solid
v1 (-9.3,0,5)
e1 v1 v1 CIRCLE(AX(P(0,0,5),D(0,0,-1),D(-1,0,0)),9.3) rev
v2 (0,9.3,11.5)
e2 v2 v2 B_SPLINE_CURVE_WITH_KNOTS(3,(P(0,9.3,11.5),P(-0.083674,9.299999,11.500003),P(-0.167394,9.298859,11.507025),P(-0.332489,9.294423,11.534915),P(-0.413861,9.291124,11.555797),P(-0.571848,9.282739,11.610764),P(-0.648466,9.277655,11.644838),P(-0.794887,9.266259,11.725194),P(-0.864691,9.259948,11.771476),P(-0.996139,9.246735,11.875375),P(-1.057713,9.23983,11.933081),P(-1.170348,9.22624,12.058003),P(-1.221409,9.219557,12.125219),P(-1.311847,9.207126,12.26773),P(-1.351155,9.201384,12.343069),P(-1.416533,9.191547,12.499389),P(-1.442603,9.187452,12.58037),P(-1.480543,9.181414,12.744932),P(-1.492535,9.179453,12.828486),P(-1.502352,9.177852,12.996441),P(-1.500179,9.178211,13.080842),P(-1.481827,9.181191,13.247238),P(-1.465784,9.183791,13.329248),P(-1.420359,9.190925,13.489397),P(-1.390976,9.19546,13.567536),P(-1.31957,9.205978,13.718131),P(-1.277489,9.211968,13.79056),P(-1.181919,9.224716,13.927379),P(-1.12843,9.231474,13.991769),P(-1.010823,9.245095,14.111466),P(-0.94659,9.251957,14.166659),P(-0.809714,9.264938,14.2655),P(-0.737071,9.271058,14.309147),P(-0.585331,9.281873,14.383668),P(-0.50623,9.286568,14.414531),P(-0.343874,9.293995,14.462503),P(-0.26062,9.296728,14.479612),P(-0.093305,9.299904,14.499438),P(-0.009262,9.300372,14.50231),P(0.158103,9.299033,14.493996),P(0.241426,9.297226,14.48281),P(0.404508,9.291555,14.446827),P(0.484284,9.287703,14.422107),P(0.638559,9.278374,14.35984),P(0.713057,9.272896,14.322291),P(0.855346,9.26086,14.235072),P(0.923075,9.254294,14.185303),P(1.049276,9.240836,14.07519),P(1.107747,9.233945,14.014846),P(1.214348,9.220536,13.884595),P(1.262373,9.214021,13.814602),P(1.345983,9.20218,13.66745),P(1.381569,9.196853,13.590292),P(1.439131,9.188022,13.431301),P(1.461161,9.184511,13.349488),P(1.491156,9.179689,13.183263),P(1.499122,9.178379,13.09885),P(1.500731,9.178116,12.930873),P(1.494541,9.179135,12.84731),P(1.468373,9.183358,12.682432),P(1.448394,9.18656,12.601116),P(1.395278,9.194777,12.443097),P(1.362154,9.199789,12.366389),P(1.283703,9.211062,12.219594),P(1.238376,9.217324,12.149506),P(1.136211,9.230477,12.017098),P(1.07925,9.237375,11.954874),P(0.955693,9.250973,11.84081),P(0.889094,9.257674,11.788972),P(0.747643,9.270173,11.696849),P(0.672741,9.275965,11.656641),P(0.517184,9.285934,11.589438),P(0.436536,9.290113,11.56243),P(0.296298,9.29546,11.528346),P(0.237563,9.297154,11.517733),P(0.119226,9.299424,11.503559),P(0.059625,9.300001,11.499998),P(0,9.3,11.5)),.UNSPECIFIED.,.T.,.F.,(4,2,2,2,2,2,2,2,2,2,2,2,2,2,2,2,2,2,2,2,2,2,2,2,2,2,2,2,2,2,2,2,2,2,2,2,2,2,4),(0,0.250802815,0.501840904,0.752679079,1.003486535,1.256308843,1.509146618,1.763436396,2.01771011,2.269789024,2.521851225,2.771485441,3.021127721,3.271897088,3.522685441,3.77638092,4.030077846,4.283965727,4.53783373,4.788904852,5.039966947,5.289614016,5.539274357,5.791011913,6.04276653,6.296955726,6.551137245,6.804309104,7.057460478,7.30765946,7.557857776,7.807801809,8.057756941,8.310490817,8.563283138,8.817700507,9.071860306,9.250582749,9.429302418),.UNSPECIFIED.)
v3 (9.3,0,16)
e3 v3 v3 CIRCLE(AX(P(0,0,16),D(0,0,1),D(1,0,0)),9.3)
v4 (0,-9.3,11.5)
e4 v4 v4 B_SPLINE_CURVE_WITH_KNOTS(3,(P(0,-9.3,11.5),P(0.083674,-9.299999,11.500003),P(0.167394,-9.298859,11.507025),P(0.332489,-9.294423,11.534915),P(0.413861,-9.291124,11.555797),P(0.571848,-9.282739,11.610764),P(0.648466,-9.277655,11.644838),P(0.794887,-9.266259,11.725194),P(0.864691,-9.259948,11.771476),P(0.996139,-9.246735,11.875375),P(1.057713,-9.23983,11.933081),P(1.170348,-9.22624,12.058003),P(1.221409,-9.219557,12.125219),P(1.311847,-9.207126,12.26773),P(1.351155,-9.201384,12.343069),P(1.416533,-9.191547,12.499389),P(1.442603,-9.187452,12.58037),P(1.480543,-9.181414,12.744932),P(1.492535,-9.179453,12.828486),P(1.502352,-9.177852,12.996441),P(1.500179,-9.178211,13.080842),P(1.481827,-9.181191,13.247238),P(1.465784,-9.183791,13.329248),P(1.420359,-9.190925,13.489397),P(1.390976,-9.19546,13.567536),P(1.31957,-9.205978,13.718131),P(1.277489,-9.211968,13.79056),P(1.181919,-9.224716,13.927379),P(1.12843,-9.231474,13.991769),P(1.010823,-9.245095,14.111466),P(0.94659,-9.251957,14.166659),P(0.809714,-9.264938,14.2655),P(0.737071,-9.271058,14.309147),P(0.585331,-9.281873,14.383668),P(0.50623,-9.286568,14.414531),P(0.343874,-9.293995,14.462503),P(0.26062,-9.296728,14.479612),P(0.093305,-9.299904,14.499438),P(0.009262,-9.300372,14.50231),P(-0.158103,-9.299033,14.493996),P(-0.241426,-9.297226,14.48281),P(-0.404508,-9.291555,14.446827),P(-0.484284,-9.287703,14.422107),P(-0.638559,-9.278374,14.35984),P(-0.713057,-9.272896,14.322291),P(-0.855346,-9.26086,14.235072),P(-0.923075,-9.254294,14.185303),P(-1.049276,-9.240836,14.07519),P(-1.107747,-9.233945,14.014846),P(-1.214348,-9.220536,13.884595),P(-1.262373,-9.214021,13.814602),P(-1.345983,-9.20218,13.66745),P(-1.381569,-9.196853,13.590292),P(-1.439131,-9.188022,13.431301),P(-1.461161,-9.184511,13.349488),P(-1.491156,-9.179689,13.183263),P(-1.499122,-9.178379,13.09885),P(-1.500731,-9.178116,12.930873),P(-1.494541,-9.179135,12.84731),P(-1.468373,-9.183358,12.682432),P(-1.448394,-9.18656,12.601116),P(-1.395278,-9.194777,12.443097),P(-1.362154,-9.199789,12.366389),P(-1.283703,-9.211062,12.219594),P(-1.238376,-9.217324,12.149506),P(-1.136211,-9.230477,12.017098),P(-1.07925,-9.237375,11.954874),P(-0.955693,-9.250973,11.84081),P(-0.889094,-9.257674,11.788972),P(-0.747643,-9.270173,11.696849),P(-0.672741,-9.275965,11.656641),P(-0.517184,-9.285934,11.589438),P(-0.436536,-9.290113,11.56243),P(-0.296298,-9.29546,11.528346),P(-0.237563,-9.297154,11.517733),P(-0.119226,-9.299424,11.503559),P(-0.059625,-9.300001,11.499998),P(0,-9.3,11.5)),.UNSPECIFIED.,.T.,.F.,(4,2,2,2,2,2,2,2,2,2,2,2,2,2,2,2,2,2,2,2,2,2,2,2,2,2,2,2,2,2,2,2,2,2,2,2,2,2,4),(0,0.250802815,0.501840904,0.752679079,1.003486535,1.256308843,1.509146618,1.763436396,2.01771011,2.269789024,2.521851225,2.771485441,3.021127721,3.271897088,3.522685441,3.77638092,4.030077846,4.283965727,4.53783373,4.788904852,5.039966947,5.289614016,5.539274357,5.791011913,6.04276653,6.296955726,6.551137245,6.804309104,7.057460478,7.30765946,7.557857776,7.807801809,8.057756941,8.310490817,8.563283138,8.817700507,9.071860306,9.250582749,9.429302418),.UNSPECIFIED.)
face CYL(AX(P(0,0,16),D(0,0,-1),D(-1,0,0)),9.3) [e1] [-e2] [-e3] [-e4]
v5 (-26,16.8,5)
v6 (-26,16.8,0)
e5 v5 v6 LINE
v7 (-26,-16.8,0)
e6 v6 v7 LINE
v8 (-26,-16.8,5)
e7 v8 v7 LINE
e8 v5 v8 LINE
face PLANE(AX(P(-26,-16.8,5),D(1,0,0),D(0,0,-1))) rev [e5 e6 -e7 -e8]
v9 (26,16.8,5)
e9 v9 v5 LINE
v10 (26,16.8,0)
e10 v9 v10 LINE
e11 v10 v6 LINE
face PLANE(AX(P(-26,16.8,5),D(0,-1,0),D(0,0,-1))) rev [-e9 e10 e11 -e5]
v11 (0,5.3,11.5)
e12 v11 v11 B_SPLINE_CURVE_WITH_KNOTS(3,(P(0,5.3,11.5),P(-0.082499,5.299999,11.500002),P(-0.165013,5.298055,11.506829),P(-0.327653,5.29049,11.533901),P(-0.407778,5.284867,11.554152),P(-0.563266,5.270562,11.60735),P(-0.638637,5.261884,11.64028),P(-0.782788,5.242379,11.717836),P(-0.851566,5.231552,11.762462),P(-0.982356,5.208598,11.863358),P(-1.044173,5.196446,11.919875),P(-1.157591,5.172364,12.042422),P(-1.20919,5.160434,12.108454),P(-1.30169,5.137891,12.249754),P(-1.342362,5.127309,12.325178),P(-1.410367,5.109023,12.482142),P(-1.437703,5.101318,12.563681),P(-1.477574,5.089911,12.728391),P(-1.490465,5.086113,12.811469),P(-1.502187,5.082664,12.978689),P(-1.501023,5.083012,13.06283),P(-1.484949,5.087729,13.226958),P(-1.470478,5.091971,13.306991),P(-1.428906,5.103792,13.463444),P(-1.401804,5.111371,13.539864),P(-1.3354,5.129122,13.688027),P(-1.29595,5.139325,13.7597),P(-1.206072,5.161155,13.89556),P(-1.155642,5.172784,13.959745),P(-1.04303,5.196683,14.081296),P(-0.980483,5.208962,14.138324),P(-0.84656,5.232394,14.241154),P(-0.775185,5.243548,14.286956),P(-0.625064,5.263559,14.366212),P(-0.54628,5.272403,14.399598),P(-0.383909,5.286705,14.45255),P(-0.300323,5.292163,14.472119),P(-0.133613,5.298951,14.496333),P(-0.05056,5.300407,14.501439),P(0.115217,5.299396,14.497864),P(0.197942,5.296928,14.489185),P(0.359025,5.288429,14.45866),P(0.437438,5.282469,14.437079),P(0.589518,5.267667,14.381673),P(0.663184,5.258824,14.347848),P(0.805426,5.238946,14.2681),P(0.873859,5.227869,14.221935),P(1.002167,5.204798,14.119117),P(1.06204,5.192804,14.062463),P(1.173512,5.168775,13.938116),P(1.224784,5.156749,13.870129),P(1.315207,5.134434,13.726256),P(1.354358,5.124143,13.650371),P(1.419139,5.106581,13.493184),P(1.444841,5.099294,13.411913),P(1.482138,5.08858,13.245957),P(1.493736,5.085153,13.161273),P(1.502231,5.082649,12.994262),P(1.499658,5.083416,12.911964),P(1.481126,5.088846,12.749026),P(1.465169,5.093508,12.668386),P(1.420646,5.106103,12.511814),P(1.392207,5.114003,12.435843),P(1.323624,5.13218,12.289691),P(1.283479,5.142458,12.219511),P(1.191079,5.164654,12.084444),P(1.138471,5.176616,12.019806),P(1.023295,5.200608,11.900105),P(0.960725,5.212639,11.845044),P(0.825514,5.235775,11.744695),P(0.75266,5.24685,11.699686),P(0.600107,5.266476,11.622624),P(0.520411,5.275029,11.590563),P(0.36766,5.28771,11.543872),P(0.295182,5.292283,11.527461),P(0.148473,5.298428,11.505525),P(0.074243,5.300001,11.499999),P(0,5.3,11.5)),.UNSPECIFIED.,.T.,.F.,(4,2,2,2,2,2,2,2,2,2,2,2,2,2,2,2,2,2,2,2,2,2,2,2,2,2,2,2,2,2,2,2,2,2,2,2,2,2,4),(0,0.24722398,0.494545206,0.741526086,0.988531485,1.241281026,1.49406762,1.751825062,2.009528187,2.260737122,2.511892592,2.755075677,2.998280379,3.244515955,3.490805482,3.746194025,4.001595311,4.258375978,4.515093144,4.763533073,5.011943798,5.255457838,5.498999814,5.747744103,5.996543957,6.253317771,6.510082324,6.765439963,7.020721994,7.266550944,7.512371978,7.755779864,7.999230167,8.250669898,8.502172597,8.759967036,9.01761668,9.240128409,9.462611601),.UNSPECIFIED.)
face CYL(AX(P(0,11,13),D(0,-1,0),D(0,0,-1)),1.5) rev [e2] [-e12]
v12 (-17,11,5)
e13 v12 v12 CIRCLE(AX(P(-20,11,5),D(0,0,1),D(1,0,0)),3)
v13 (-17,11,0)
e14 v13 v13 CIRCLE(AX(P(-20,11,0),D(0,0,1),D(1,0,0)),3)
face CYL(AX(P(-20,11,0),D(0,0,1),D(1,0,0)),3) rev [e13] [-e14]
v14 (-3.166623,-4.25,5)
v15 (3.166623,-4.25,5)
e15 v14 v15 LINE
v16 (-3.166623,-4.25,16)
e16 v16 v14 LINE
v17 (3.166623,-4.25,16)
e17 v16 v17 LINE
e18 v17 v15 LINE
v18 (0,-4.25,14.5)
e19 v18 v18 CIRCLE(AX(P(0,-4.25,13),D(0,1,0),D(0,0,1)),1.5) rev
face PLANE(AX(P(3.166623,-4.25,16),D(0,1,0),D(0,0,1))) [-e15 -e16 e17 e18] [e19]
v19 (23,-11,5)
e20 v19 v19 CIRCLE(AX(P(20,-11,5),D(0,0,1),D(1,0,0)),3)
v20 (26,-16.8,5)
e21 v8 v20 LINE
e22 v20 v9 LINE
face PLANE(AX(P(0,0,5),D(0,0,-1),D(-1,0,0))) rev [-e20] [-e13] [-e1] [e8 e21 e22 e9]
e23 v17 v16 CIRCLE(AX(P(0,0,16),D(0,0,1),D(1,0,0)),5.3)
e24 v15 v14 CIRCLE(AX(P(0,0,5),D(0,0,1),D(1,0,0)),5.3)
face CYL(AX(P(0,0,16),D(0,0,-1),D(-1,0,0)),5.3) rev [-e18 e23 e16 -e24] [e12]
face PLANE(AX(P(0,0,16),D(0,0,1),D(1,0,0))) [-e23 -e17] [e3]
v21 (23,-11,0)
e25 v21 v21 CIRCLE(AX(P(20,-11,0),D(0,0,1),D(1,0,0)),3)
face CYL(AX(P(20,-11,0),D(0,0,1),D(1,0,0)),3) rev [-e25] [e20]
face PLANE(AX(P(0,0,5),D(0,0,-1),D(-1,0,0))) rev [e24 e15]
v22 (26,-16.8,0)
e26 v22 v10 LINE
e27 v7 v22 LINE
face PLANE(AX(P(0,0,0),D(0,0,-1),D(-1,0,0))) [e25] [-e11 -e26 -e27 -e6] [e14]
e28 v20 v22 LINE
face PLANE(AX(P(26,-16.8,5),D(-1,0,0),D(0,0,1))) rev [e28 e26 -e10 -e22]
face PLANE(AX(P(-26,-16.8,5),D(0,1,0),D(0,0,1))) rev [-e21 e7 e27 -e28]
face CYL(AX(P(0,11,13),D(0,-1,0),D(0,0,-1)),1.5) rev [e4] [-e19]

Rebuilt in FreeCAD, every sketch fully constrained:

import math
import FreeCAD as App
import Part
import Sketcher
from FreeCAD import Vector


def add_polygon(sketch, points):
    """Adds a closed chain of lines whose ends are joined by coincident constraints."""
    first, n = sketch.GeometryCount, len(points)
    for a, b in zip(points, points[1:] + points[:1]):
        sketch.addGeometry(Part.LineSegment(App.Vector(*a, 0), App.Vector(*b, 0)), False)
    for i in range(n):
        sketch.addConstraint(Sketcher.Constraint("Coincident", first + i, 2, first + (i + 1) % n, 1))

doc = App.newDocument("Part")
params = doc.addObject("Spreadsheet::Sheet", "Params")
for row, (alias, value) in enumerate([
    ("sketch1_width", "52 mm"),
    ("sketch1_height", "33.6 mm"),
    ("pad1_length", "5 mm"),
    ("sketch2_diameter", "6 mm"),
    ("pocket1_length", "5 mm"),
    ("sketch3_diameter", "18.6 mm"),
    ("sketch3_radius", "5.3 mm"),
    ("pad2_length", "11 mm"),
    ("sketch4_diameter", "3 mm"),
], start=1):
    params.set(f"A{row}", alias)
    params.set(f"B{row}", "=" + value)
    params.setAlias(f"B{row}", alias)

body = doc.addObject("PartDesign::Body", "Body")

sketch1 = body.newObject("Sketcher::SketchObject", "Sketch")
sketch1.AttachmentSupport = (doc.getObject("XY_Plane"), [""])
sketch1.MapMode = "FlatFace"
add_polygon(sketch1, [(-26, 17), (-26, -17), (26, -17), (26, 17)])
sketch1.addConstraint(Sketcher.Constraint("Vertical", 0))
sketch1.addConstraint(Sketcher.Constraint("Horizontal", 1))
sketch1.addConstraint(Sketcher.Constraint("Vertical", 2))
sketch1.addConstraint(Sketcher.Constraint("Horizontal", 3))
sketch1.addConstraint(Sketcher.Constraint("Symmetric", 0, 2, 2, 2, -1, 1))
sketch1.addConstraint(Sketcher.Constraint("DistanceX", 1, 1, 1, 2, 52.0))
sketch1.addConstraint(Sketcher.Constraint("DistanceY", 0, 2, 0, 1, 33.6))
sketch1.setExpression("Constraints[9]", "Params.sketch1_width")
sketch1.setExpression("Constraints[10]", "Params.sketch1_height")
pad1 = body.newObject("PartDesign::Pad", "Pad")
pad1.Profile = sketch1
pad1.setExpression("Length", "Params.pad1_length")

sketch2 = body.newObject("Sketcher::SketchObject", "Sketch001")
sketch2.AttachmentSupport = (doc.getObject("XY_Plane"), [""])
sketch2.MapMode = "FlatFace"
sketch2.AttachmentOffset = App.Placement(Vector(0, 0, 5), App.Rotation())
sketch2.addGeometry(Part.Circle(Vector(-20, 11, 0), Vector(0, 0, 1), 3), False)
sketch2.addGeometry(Part.Circle(Vector(20, -11, 0), Vector(0, 0, 1), 3), False)
sketch2.addConstraint(Sketcher.Constraint("Equal", 0, 1))
sketch2.addConstraint(Sketcher.Constraint("Symmetric", 0, 3, 1, 3, -1, 1))
sketch2.addConstraint(Sketcher.Constraint("Diameter", 0, 6.0))
sketch2.addConstraint(Sketcher.Constraint("DistanceX", 0, 3, -1, 1, 20.0))
sketch2.addConstraint(Sketcher.Constraint("DistanceY", -1, 1, 0, 3, 11.0))
sketch2.setExpression("Constraints[2]", "Params.sketch2_diameter")
pocket1 = body.newObject("PartDesign::Pocket", "Pocket")
pocket1.Profile = sketch2
pocket1.setExpression("Length", "Params.pocket1_length")

sketch3 = body.newObject("Sketcher::SketchObject", "Sketch002")
sketch3.AttachmentSupport = (doc.getObject("XY_Plane"), [""])
sketch3.MapMode = "FlatFace"
sketch3.AttachmentOffset = App.Placement(Vector(0, 0, 5), App.Rotation())
sketch3.addGeometry(Part.Circle(Vector(0, 0, 0), Vector(0, 0, 1), 9), False)
sketch3.addGeometry(Part.ArcOfCircle(Part.Circle(Vector(0, 0, 0), Vector(0, 0, 1), 5), math.radians(-53), math.radians(233)), False)
sketch3.addGeometry(Part.LineSegment(Vector(3, -4, 0), Vector(-3, -4, 0)), False)
sketch3.addConstraint(Sketcher.Constraint("Coincident", 1, 1, 2, 1))
sketch3.addConstraint(Sketcher.Constraint("Coincident", 2, 2, 1, 2))
sketch3.addConstraint(Sketcher.Constraint("Horizontal", 2))
sketch3.addConstraint(Sketcher.Constraint("Coincident", 0, 3, -1, 1))
sketch3.addConstraint(Sketcher.Constraint("Coincident", 1, 3, -1, 1))
sketch3.addConstraint(Sketcher.Constraint("Diameter", 0, 18.6))
sketch3.addConstraint(Sketcher.Constraint("Radius", 1, 5.3))
sketch3.addConstraint(Sketcher.Constraint("DistanceY", 1, 1, -1, 1, 4.25))
sketch3.setExpression("Constraints[5]", "Params.sketch3_diameter")
sketch3.setExpression("Constraints[6]", "Params.sketch3_radius")
pad2 = body.newObject("PartDesign::Pad", "Pad001")
pad2.Profile = sketch3
pad2.setExpression("Length", "Params.pad2_length")

sketch4 = body.newObject("Sketcher::SketchObject", "Sketch003")
sketch4.AttachmentSupport = (doc.getObject("XZ_Plane"), [""])
sketch4.MapMode = "FlatFace"
sketch4.addGeometry(Part.Circle(Vector(0, 13, 0), Vector(0, 0, 1), 1.5), False)
sketch4.addConstraint(Sketcher.Constraint("PointOnObject", 0, 3, -2))
sketch4.addConstraint(Sketcher.Constraint("Diameter", 0, 3.0))
sketch4.addConstraint(Sketcher.Constraint("DistanceY", -1, 1, 0, 3, 13.0))
sketch4.setExpression("Constraints[1]", "Params.sketch4_diameter")
pocket2 = body.newObject("PartDesign::Pocket", "Pocket001")
pocket2.Profile = sketch4
pocket2.Type = "ThroughAll"
pocket2.Midplane = True

doc.recompute()
